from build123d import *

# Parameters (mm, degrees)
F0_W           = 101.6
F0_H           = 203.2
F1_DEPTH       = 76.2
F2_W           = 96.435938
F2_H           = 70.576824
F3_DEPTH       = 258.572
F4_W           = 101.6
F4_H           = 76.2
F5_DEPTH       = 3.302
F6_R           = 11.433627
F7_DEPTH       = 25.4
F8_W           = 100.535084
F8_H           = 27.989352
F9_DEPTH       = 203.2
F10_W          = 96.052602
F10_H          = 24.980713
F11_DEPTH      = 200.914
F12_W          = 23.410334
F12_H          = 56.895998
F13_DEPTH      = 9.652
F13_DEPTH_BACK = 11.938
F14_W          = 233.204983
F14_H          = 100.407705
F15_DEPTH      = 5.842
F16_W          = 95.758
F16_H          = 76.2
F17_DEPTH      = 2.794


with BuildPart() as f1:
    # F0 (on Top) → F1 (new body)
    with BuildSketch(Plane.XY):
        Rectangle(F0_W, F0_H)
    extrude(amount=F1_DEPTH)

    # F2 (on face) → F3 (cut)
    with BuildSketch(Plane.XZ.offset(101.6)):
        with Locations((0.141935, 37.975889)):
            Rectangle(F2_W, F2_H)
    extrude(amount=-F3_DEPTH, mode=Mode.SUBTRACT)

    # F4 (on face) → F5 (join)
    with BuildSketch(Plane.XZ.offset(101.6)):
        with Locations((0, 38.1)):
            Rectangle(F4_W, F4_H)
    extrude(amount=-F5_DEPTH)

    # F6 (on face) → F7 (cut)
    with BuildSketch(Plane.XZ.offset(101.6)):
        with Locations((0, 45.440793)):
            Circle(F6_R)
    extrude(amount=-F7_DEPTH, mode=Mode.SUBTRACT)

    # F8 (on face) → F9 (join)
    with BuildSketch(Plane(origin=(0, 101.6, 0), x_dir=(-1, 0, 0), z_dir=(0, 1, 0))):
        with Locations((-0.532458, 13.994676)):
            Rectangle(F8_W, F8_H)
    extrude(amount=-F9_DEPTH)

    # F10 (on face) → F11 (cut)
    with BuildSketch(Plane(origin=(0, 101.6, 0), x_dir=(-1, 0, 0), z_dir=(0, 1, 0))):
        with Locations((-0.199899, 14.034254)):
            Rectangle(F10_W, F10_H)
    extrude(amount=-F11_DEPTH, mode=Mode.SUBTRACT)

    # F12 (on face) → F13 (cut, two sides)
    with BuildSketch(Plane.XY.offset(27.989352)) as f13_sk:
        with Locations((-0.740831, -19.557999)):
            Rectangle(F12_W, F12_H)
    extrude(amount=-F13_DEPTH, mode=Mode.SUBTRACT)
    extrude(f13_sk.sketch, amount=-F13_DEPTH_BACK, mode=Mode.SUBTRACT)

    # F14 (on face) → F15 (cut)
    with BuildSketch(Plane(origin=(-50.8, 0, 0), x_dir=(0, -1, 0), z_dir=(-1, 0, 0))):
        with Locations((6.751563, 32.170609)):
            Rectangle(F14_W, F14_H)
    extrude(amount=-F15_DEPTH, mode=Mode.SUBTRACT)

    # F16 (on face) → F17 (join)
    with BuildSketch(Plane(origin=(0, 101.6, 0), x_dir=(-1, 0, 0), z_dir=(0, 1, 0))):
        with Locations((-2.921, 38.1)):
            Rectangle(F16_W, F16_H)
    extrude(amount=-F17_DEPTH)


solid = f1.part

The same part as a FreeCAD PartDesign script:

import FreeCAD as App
import Part
import Sketcher
Q = App.Units.Quantity

doc = App.newDocument("Part")
body = doc.addObject("PartDesign::Body", "Body")

# Sketch on XY plane
sketch1 = body.newObject("Sketcher::SketchObject", "Sketch")
sketch1.AttachmentSupport = (doc.getObject("XY_Plane"), [""])
sketch1.MapMode = "FlatFace"
sketch1.addGeometry([
    Part.LineSegment(App.Vector(-51, 102, 0), App.Vector(-51, -102, 0)),
    Part.LineSegment(App.Vector(-51, -102, 0), App.Vector(51, -102, 0)),
    Part.LineSegment(App.Vector(51, -102, 0), App.Vector(51, 102, 0)),
    Part.LineSegment(App.Vector(51, 102, 0), App.Vector(-51, 102, 0)),
], False)
sketch1.addConstraint([
    Sketcher.Constraint("Coincident", 0, 2, 1, 1),
    Sketcher.Constraint("Coincident", 1, 2, 2, 1),
    Sketcher.Constraint("Coincident", 2, 2, 3, 1),
    Sketcher.Constraint("Coincident", 3, 2, 0, 1),
    Sketcher.Constraint("Vertical", 0),
    Sketcher.Constraint("Horizontal", 1),
    Sketcher.Constraint("Vertical", 2),
    Sketcher.Constraint("Horizontal", 3),
    Sketcher.Constraint("Symmetric", 0, 2, 2, 2, -1, 1),
    Sketcher.Constraint("DistanceX", 1, 1, 1, 2, Q("4 in")),
    Sketcher.Constraint("DistanceY", 0, 2, 0, 1, Q("8 in")),
])
pad1 = body.newObject("PartDesign::Pad", "Pad")
pad1.Profile = sketch1
pad1.Length = Q("3 in")

# Sketch on XZ plane
sketch2 = body.newObject("Sketcher::SketchObject", "Sketch001")
sketch2.AttachmentSupport = (doc.getObject("XZ_Plane"), [""])
sketch2.MapMode = "FlatFace"
sketch2.AttachmentOffset = App.Placement(App.Vector(0, 0, 4 * 25.4), App.Rotation())
sketch2.addGeometry([
    Part.LineSegment(App.Vector(-48, 73, 0), App.Vector(-48, 3, 0)),
    Part.LineSegment(App.Vector(-48, 3, 0), App.Vector(48, 3, 0)),
    Part.LineSegment(App.Vector(48, 3, 0), App.Vector(48, 73, 0)),
    Part.LineSegment(App.Vector(48, 73, 0), App.Vector(-48, 73, 0)),
], False)
sketch2.addConstraint([
    Sketcher.Constraint("Coincident", 0, 2, 1, 1),
    Sketcher.Constraint("Coincident", 1, 2, 2, 1),
    Sketcher.Constraint("Coincident", 2, 2, 3, 1),
    Sketcher.Constraint("Coincident", 3, 2, 0, 1),
    Sketcher.Constraint("Vertical", 0),
    Sketcher.Constraint("Horizontal", 1),
    Sketcher.Constraint("Vertical", 2),
    Sketcher.Constraint("Horizontal", 3),
    Sketcher.Constraint("DistanceY", -1, 1, 2, 2, Q("73.264301 mm")),
    Sketcher.Constraint("DistanceX", 1, 1, 1, 2, Q("96.435938 mm")),
    Sketcher.Constraint("DistanceY", 0, 2, 0, 1, Q("70.576824 mm")),
    Sketcher.Constraint("DistanceX", 0, 2, -1, 1, Q("48.076034 mm")),
])
pocket1 = body.newObject("PartDesign::Pocket", "Pocket")
pocket1.Profile = sketch2
pocket1.Length = Q("10.18 in")

# Sketch on XZ plane
sketch3 = body.newObject("Sketcher::SketchObject", "Sketch002")
sketch3.AttachmentSupport = (doc.getObject("XZ_Plane"), [""])
sketch3.MapMode = "FlatFace"
sketch3.AttachmentOffset = App.Placement(App.Vector(0, 0, 4 * 25.4), App.Rotation())
sketch3.addGeometry([
    Part.LineSegment(App.Vector(-51, 76, 0), App.Vector(-51, 0, 0)),
    Part.LineSegment(App.Vector(-51, 0, 0), App.Vector(51, 0, 0)),
    Part.LineSegment(App.Vector(51, 0, 0), App.Vector(51, 76, 0)),
    Part.LineSegment(App.Vector(51, 76, 0), App.Vector(-51, 76, 0)),
], False)
sketch3.addConstraint([
    Sketcher.Constraint("Coincident", 0, 2, 1, 1),
    Sketcher.Constraint("Coincident", 1, 2, 2, 1),
    Sketcher.Constraint("Coincident", 2, 2, 3, 1),
    Sketcher.Constraint("Coincident", 3, 2, 0, 1),
    Sketcher.Constraint("Vertical", 0),
    Sketcher.Constraint("Horizontal", 1),
    Sketcher.Constraint("Vertical", 2),
    Sketcher.Constraint("Horizontal", 3),
    Sketcher.Constraint("Symmetric", 0, 2, 1, 2, -1, 1),
    Sketcher.Constraint("DistanceX", 1, 1, 1, 2, Q("4 in")),
    Sketcher.Constraint("DistanceY", 0, 2, 0, 1, Q("3 in")),
])
pad2 = body.newObject("PartDesign::Pad", "Pad001")
pad2.Profile = sketch3
pad2.Length = Q("0.13 in")
pad2.Reversed = True

# Sketch on XZ plane
sketch4 = body.newObject("Sketcher::SketchObject", "Sketch003")
sketch4.AttachmentSupport = (doc.getObject("XZ_Plane"), [""])
sketch4.MapMode = "FlatFace"
sketch4.AttachmentOffset = App.Placement(App.Vector(0, 0, 4 * 25.4), App.Rotation())
sketch4.addGeometry(Part.Circle(App.Vector(0, 45, 0), App.Vector(0, 0, 1), 11), False)
sketch4.addConstraint([
    Sketcher.Constraint("PointOnObject", 0, 3, -2),
    Sketcher.Constraint("Diameter", 0, Q("22.867254 mm")),
    Sketcher.Constraint("DistanceY", -1, 1, 0, 3, Q("45.440793 mm")),
])
pocket2 = body.newObject("PartDesign::Pocket", "Pocket001")
pocket2.Profile = sketch4
pocket2.Length = Q("1 in")

# Sketch on XZ plane
sketch5 = body.newObject("Sketcher::SketchObject", "Sketch004")
sketch5.AttachmentSupport = (doc.getObject("XZ_Plane"), [""])
sketch5.MapMode = "FlatFace"
sketch5.AttachmentOffset = App.Placement(App.Vector(0, 0, -4 * 25.4), App.Rotation())
sketch5.addGeometry([
    Part.LineSegment(App.Vector(51, 28, 0), App.Vector(51, 0, 0)),
    Part.LineSegment(App.Vector(51, 0, 0), App.Vector(-50, 0, 0)),
    Part.LineSegment(App.Vector(-50, 0, 0), App.Vector(-50, 28, 0)),
    Part.LineSegment(App.Vector(-50, 28, 0), App.Vector(51, 28, 0)),
], False)
sketch5.addConstraint([
    Sketcher.Constraint("Coincident", 0, 2, 1, 1),
    Sketcher.Constraint("Coincident", 1, 2, 2, 1),
    Sketcher.Constraint("Coincident", 2, 2, 3, 1),
    Sketcher.Constraint("Coincident", 3, 2, 0, 1),
    Sketcher.Constraint("Vertical", 0),
    Sketcher.Constraint("Horizontal", 1),
    Sketcher.Constraint("Vertical", 2),
    Sketcher.Constraint("Horizontal", 3),
    Sketcher.Constraint("PointOnObject", 0, 2, -1),
    Sketcher.Constraint("DistanceX", -1, 1, 0, 2, Q("2 in")),
    Sketcher.Constraint("DistanceY", 0, 2, 0, 1, Q("27.989352 mm")),
    Sketcher.Constraint("DistanceX", 1, 2, 1, 1, Q("100.535084 mm")),
])
pad3 = body.newObject("PartDesign::Pad", "Pad002")
pad3.Profile = sketch5
pad3.Length = Q("8 in")

# Sketch on XZ plane
sketch6 = body.newObject("Sketcher::SketchObject", "Sketch005")
sketch6.AttachmentSupport = (doc.getObject("XZ_Plane"), [""])
sketch6.MapMode = "FlatFace"
sketch6.AttachmentOffset = App.Placement(App.Vector(0, 0, -4 * 25.4), App.Rotation())
sketch6.addGeometry([
    Part.LineSegment(App.Vector(48, 27, 0), App.Vector(48, 2, 0)),
    Part.LineSegment(App.Vector(48, 2, 0), App.Vector(-48, 2, 0)),
    Part.LineSegment(App.Vector(-48, 2, 0), App.Vector(-48, 27, 0)),
    Part.LineSegment(App.Vector(-48, 27, 0), App.Vector(48, 27, 0)),
], False)
sketch6.addConstraint([
    Sketcher.Constraint("Coincident", 0, 2, 1, 1),
    Sketcher.Constraint("Coincident", 1, 2, 2, 1),
    Sketcher.Constraint("Coincident", 2, 2, 3, 1),
    Sketcher.Constraint("Coincident", 3, 2, 0, 1),
    Sketcher.Constraint("Vertical", 0),
    Sketcher.Constraint("Horizontal", 1),
    Sketcher.Constraint("Vertical", 2),
    Sketcher.Constraint("Horizontal", 3),
    Sketcher.Constraint("DistanceX", -1, 1, 0, 2, Q("48.2262 mm")),
    Sketcher.Constraint("DistanceX", 1, 2, 1, 1, Q("96.052602 mm")),
    Sketcher.Constraint("DistanceY", 0, 2, 0, 1, Q("24.980713 mm")),
    Sketcher.Constraint("DistanceY", -1, 1, 2, 2, Q("26.524611 mm")),
])
pocket3 = body.newObject("PartDesign::Pocket", "Pocket002")
pocket3.Profile = sketch6
pocket3.Length = Q("7.91 in")
pocket3.Reversed = True

# Sketch on XY plane
sketch7 = body.newObject("Sketcher::SketchObject", "Sketch006")
sketch7.AttachmentSupport = (doc.getObject("XY_Plane"), [""])
sketch7.MapMode = "FlatFace"
sketch7.AttachmentOffset = App.Placement(App.Vector(0, 0, 27.989352), App.Rotation())
sketch7.addGeometry([
    Part.LineSegment(App.Vector(-12, 9, 0), App.Vector(-12, -48, 0)),
    Part.LineSegment(App.Vector(-12, -48, 0), App.Vector(11, -48, 0)),
    Part.LineSegment(App.Vector(11, -48, 0), App.Vector(11, 9, 0)),
    Part.LineSegment(App.Vector(11, 9, 0), App.Vector(-12, 9, 0)),
], False)
sketch7.addConstraint([
    Sketcher.Constraint("Coincident", 0, 2, 1, 1),
    Sketcher.Constraint("Coincident", 1, 2, 2, 1),
    Sketcher.Constraint("Coincident", 2, 2, 3, 1),
    Sketcher.Constraint("Coincident", 3, 2, 0, 1),
    Sketcher.Constraint("Vertical", 0),
    Sketcher.Constraint("Horizontal", 1),
    Sketcher.Constraint("Vertical", 2),
    Sketcher.Constraint("Horizontal", 3),
    Sketcher.Constraint("DistanceY", 0, 2, 0, 1, Q("2.2399999 in")),
    Sketcher.Constraint("DistanceX", 0, 2, -1, 1, Q("0.4899999 in")),
    Sketcher.Constraint("DistanceY", 0, 2, -1, 1, Q("1.8899999 in")),
    Sketcher.Constraint("DistanceX", 1, 1, 1, 2, Q("23.410334 mm")),
])
pocket4 = body.newObject("PartDesign::Pocket", "Pocket003")
pocket4.Profile = sketch7
pocket4.Length = Q("0.38 in")
pocket5 = body.newObject("PartDesign::Pocket", "Pocket004")
pocket5.Profile = sketch7
pocket5.Length = Q("0.47 in")

# Sketch on YZ plane
sketch8 = body.newObject("Sketcher::SketchObject", "Sketch007")
sketch8.AttachmentSupport = (doc.getObject("YZ_Plane"), [""])
sketch8.MapMode = "FlatFace"
sketch8.AttachmentOffset = App.Placement(App.Vector(0, 0, -2 * 25.4), App.Rotation())
sketch8.addGeometry([
    Part.LineSegment(App.Vector(110, 82, 0), App.Vector(110, -18, 0)),
    Part.LineSegment(App.Vector(110, -18, 0), App.Vector(-123, -18, 0)),
    Part.LineSegment(App.Vector(-123, -18, 0), App.Vector(-123, 82, 0)),
    Part.LineSegment(App.Vector(-123, 82, 0), App.Vector(110, 82, 0)),
], False)
sketch8.addConstraint([
    Sketcher.Constraint("Coincident", 0, 2, 1, 1),
    Sketcher.Constraint("Coincident", 1, 2, 2, 1),
    Sketcher.Constraint("Coincident", 2, 2, 3, 1),
    Sketcher.Constraint("Coincident", 3, 2, 0, 1),
    Sketcher.Constraint("Vertical", 0),
    Sketcher.Constraint("Horizontal", 1),
    Sketcher.Constraint("Vertical", 2),
    Sketcher.Constraint("Horizontal", 3),
    Sketcher.Constraint("DistanceX", 1, 2, 1, 1, Q("233.204983 mm")),
    Sketcher.Constraint("DistanceY", 0, 2, 0, 1, Q("100.407705 mm")),
    Sketcher.Constraint("DistanceX", -1, 1, 0, 2, Q("109.850928 mm")),
    Sketcher.Constraint("DistanceY", -1, 1, 2, 2, Q("82.374461 mm")),
])
pocket6 = body.newObject("PartDesign::Pocket", "Pocket005")
pocket6.Profile = sketch8
pocket6.Length = Q("0.23 in")
pocket6.Reversed = True

# Sketch on XZ plane
sketch9 = body.newObject("Sketcher::SketchObject", "Sketch008")
sketch9.AttachmentSupport = (doc.getObject("XZ_Plane"), [""])
sketch9.MapMode = "FlatFace"
sketch9.AttachmentOffset = App.Placement(App.Vector(0, 0, -4 * 25.4), App.Rotation())
sketch9.addGeometry([
    Part.LineSegment(App.Vector(51, 76, 0), App.Vector(51, 0, 0)),
    Part.LineSegment(App.Vector(51, 0, 0), App.Vector(-45, 0, 0)),
    Part.LineSegment(App.Vector(-45, 0, 0), App.Vector(-45, 76, 0)),
    Part.LineSegment(App.Vector(-45, 76, 0), App.Vector(51, 76, 0)),
], False)
sketch9.addConstraint([
    Sketcher.Constraint("Coincident", 0, 2, 1, 1),
    Sketcher.Constraint("Coincident", 1, 2, 2, 1),
    Sketcher.Constraint("Coincident", 2, 2, 3, 1),
    Sketcher.Constraint("Coincident", 3, 2, 0, 1),
    Sketcher.Constraint("Vertical", 0),
    Sketcher.Constraint("Horizontal", 1),
    Sketcher.Constraint("Vertical", 2),
    Sketcher.Constraint("Horizontal", 3),
    Sketcher.Constraint("PointOnObject", 0, 2, -1),
    Sketcher.Constraint("DistanceY", 0, 2, 0, 1, Q("3 in")),
    Sketcher.Constraint("DistanceX", -1, 1, 0, 2, Q("2 in")),
    Sketcher.Constraint("DistanceX", 1, 2, 1, 1, Q("3.77 in")),
])
pad4 = body.newObject("PartDesign::Pad", "Pad003")
pad4.Profile = sketch9
pad4.Length = Q("0.11 in")

doc.recompute()
